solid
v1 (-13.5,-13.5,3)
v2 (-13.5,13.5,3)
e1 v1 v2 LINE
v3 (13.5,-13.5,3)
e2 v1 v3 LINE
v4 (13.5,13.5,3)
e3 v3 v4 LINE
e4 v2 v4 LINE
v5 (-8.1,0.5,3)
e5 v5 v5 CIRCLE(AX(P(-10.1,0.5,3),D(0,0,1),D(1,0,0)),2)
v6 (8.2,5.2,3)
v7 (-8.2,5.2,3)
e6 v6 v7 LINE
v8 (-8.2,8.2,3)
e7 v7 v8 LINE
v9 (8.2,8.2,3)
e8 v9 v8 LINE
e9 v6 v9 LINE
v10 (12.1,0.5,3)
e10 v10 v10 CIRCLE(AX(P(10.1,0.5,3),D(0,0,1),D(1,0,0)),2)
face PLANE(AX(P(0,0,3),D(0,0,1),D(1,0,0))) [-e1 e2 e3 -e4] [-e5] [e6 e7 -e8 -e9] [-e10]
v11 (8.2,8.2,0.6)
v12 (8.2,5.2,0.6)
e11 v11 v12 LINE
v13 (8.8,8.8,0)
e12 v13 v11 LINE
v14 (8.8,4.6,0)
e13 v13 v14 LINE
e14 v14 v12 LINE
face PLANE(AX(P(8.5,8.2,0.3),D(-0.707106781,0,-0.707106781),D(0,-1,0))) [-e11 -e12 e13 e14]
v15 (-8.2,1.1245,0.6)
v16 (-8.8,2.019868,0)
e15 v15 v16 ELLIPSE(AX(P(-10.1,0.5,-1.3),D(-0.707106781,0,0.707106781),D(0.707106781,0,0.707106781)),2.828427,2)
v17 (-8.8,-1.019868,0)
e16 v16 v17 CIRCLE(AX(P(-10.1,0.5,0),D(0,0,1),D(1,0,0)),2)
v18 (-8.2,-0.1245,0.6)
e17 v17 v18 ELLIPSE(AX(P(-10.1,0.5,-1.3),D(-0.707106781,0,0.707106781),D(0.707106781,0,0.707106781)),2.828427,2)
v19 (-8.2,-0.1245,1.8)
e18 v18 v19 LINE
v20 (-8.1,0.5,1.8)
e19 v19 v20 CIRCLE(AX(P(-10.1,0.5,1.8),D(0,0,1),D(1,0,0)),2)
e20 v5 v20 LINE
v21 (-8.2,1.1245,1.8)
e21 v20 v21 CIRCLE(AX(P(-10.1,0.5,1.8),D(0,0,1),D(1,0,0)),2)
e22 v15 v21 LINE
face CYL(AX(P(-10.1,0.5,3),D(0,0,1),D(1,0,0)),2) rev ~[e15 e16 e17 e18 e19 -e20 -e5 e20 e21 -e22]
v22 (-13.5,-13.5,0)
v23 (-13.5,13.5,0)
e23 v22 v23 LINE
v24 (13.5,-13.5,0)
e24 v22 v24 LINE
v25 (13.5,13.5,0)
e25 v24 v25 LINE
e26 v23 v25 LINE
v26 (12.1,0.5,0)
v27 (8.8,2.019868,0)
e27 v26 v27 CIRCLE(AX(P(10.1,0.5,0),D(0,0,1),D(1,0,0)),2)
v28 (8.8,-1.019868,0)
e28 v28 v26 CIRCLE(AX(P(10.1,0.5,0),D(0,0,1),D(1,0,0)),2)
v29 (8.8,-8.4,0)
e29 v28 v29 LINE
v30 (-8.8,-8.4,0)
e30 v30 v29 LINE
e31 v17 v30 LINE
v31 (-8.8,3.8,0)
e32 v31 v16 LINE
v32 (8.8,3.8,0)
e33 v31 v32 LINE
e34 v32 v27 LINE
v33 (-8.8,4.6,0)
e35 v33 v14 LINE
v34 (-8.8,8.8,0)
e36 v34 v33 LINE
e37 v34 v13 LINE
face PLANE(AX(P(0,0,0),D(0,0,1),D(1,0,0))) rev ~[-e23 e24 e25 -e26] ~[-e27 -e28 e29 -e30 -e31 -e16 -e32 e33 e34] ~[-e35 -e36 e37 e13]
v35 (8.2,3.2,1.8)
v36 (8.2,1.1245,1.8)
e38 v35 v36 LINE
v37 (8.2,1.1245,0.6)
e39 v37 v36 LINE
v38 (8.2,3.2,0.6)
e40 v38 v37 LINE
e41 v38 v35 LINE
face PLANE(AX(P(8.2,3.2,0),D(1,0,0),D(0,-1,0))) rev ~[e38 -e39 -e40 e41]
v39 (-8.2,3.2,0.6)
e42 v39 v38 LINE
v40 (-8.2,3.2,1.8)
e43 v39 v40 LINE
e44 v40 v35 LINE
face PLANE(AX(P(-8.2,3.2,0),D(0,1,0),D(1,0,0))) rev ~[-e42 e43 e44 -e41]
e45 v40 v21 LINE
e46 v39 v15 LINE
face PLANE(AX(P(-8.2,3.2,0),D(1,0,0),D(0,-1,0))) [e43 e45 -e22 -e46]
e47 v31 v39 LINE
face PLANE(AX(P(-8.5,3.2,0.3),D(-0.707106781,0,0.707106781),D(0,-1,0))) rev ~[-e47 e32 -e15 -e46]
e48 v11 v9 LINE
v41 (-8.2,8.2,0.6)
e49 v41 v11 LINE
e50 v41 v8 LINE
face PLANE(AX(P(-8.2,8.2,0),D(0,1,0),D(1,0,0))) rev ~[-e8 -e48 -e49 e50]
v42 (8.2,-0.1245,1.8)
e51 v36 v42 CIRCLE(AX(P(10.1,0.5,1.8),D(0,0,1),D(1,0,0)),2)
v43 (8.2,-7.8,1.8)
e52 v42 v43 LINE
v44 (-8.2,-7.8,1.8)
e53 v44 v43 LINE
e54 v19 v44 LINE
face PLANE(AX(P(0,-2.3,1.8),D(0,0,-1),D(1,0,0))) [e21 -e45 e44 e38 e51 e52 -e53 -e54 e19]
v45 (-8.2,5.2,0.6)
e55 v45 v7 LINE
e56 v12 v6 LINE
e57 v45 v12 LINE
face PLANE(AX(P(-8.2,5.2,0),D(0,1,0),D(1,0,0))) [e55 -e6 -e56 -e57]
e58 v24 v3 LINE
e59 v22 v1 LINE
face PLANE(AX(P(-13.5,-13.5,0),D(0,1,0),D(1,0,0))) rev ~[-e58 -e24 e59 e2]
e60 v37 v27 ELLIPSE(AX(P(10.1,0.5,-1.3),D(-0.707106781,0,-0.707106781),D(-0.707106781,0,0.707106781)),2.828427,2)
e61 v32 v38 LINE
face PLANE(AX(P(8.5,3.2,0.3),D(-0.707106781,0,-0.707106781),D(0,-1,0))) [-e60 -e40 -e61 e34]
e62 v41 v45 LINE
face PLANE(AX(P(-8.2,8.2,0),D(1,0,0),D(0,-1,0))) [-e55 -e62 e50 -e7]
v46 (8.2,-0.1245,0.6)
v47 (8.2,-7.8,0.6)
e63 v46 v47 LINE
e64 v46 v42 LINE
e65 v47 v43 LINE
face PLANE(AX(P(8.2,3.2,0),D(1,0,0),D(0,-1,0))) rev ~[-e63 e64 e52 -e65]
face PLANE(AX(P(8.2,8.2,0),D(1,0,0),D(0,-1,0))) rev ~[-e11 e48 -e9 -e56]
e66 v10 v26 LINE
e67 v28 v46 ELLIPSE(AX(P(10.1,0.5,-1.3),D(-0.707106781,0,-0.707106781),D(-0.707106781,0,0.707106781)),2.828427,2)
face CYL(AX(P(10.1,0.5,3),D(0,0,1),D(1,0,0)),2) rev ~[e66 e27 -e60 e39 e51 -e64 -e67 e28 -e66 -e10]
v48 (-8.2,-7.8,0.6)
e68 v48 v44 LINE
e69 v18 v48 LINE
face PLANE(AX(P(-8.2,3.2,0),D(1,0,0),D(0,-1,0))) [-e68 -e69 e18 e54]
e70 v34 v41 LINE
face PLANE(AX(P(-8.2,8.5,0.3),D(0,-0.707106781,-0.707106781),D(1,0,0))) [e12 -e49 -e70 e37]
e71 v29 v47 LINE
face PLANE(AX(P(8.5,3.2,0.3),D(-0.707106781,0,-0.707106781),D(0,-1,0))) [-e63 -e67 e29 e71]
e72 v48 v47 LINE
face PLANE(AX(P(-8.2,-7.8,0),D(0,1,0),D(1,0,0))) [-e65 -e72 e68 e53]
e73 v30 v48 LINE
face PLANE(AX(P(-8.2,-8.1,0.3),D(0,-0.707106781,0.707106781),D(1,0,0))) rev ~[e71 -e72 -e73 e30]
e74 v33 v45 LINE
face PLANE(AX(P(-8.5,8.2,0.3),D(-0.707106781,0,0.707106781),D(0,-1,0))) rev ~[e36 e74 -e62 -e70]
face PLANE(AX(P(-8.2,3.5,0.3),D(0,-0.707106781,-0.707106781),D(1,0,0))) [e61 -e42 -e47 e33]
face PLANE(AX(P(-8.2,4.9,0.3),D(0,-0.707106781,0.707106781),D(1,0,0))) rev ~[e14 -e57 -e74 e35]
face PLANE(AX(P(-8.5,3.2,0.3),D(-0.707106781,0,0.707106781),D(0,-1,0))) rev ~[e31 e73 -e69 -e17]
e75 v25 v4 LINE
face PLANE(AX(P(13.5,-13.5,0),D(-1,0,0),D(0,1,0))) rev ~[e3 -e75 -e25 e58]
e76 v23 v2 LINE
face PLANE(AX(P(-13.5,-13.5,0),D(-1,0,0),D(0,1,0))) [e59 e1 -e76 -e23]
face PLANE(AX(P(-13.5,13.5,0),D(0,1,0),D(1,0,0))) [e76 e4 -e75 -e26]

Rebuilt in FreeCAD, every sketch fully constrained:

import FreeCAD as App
import Part
import Sketcher
from FreeCAD import Vector


def edges_at(feature, points):
    """Names of the edges that pass closest to the given points."""
    edges = feature.Shape.Edges
    near = lambda p: min(range(len(edges)), key=lambda i: edges[i].distToShape(Part.Vertex(*p))[0])
    return sorted({f"Edge{near(p) + 1}" for p in points})

doc = App.newDocument("Part")
body = doc.addObject("PartDesign::Body", "Body")

# Sketch on XY plane
sketch1 = body.newObject("Sketcher::SketchObject", "Sketch")
sketch1.AttachmentSupport = (doc.getObject("XY_Plane"), [""])
sketch1.MapMode = "FlatFace"
sketch1.addGeometry(Part.LineSegment(Vector(-13.5, 13.5, 0), Vector(-13.5, -13.5, 0)), False)
sketch1.addGeometry(Part.LineSegment(Vector(-13.5, -13.5, 0), Vector(13.5, -13.5, 0)), False)
sketch1.addGeometry(Part.LineSegment(Vector(13.5, -13.5, 0), Vector(13.5, 13.5, 0)), False)
sketch1.addGeometry(Part.LineSegment(Vector(13.5, 13.5, 0), Vector(-13.5, 13.5, 0)), False)
sketch1.addConstraint(Sketcher.Constraint("Coincident", 0, 2, 1, 1))
sketch1.addConstraint(Sketcher.Constraint("Coincident", 1, 2, 2, 1))
sketch1.addConstraint(Sketcher.Constraint("Coincident", 2, 2, 3, 1))
sketch1.addConstraint(Sketcher.Constraint("Coincident", 3, 2, 0, 1))
sketch1.addConstraint(Sketcher.Constraint("Vertical", 0))
sketch1.addConstraint(Sketcher.Constraint("Horizontal", 1))
sketch1.addConstraint(Sketcher.Constraint("Vertical", 2))
sketch1.addConstraint(Sketcher.Constraint("Horizontal", 3))
sketch1.addConstraint(Sketcher.Constraint("Symmetric", 0, 2, 2, 2, -1, 1))
sketch1.addConstraint(Sketcher.Constraint("Equal", 3, 0))
sketch1.addConstraint(Sketcher.Constraint("DistanceX", 1, 1, 1, 2, 27.0))
pad1 = body.newObject("PartDesign::Pad", "Pad")
pad1.Profile = sketch1
pad1.Length = 3

# Sketch on XY plane
sketch2 = body.newObject("Sketcher::SketchObject", "Sketch001")
sketch2.AttachmentSupport = (doc.getObject("XY_Plane"), [""])
sketch2.MapMode = "FlatFace"
sketch2.addGeometry(Part.LineSegment(Vector(-8.2, 5.2, 0), Vector(-8.2, 8.2, 0)), False)
sketch2.addGeometry(Part.LineSegment(Vector(-8.2, 8.2, 0), Vector(8.2, 8.2, 0)), False)
sketch2.addGeometry(Part.LineSegment(Vector(8.2, 8.2, 0), Vector(8.2, 5.2, 0)), False)
sketch2.addGeometry(Part.LineSegment(Vector(8.2, 5.2, 0), Vector(-8.2, 5.2, 0)), False)
sketch2.addConstraint(Sketcher.Constraint("Coincident", 0, 2, 1, 1))
sketch2.addConstraint(Sketcher.Constraint("Coincident", 1, 2, 2, 1))
sketch2.addConstraint(Sketcher.Constraint("Coincident", 2, 2, 3, 1))
sketch2.addConstraint(Sketcher.Constraint("Coincident", 3, 2, 0, 1))
sketch2.addConstraint(Sketcher.Constraint("Vertical", 0))
sketch2.addConstraint(Sketcher.Constraint("Horizontal", 1))
sketch2.addConstraint(Sketcher.Constraint("Vertical", 2))
sketch2.addConstraint(Sketcher.Constraint("Horizontal", 3))
sketch2.addConstraint(Sketcher.Constraint("DistanceY", 0, 1, 0, 2, 3.0))
sketch2.addConstraint(Sketcher.Constraint("DistanceX", 1, 1, 1, 2, 16.4))
sketch2.addConstraint(Sketcher.Constraint("DistanceX", 0, 2, -1, 1, 8.2))
sketch2.addConstraint(Sketcher.Constraint("DistanceY", -1, 1, 0, 2, 8.2))
pocket1 = body.newObject("PartDesign::Pocket", "Pocket")
pocket1.Profile = sketch2
pocket1.Length = 5
pocket1.Reversed = True

# Sketch on XY plane
sketch3 = body.newObject("Sketcher::SketchObject", "Sketch002")
sketch3.AttachmentSupport = (doc.getObject("XY_Plane"), [""])
sketch3.MapMode = "FlatFace"
sketch3.addGeometry(Part.LineSegment(Vector(-8.2, -7.8, 0), Vector(-8.2, 3.2, 0)), False)
sketch3.addGeometry(Part.LineSegment(Vector(-8.2, 3.2, 0), Vector(8.2, 3.2, 0)), False)
sketch3.addGeometry(Part.LineSegment(Vector(8.2, 3.2, 0), Vector(8.2, -7.8, 0)), False)
sketch3.addGeometry(Part.LineSegment(Vector(8.2, -7.8, 0), Vector(-8.2, -7.8, 0)), False)
sketch3.addConstraint(Sketcher.Constraint("Coincident", 0, 2, 1, 1))
sketch3.addConstraint(Sketcher.Constraint("Coincident", 1, 2, 2, 1))
sketch3.addConstraint(Sketcher.Constraint("Coincident", 2, 2, 3, 1))
sketch3.addConstraint(Sketcher.Constraint("Coincident", 3, 2, 0, 1))
sketch3.addConstraint(Sketcher.Constraint("Vertical", 0))
sketch3.addConstraint(Sketcher.Constraint("Horizontal", 1))
sketch3.addConstraint(Sketcher.Constraint("Vertical", 2))
sketch3.addConstraint(Sketcher.Constraint("Horizontal", 3))
sketch3.addConstraint(Sketcher.Constraint("DistanceY", 0, 1, 0, 2, 11.0))
sketch3.addConstraint(Sketcher.Constraint("DistanceX", 1, 1, 1, 2, 16.4))
sketch3.addConstraint(Sketcher.Constraint("DistanceX", 0, 2, -1, 1, 8.2))
sketch3.addConstraint(Sketcher.Constraint("DistanceY", -1, 1, 0, 2, 3.2))
pocket2 = body.newObject("PartDesign::Pocket", "Pocket001")
pocket2.Profile = sketch3
pocket2.Length = 1.8
pocket2.Reversed = True
doc.recompute()

chamfer = body.newObject("PartDesign::Chamfer", "Chamfer")
chamfer.Base = (pocket2, edges_at(pocket2, [
    (8.2, -2.3, 0),
    (0, -7.8, 0),
    (-8.2, -2.3, 0),
    (0, 3.2, 0),
    (0, 5.2, 0),
    (8.2, 6.7, 0),
    (0, 8.2, 0),
    (-8.2, 6.7, 0),
]))
chamfer.Size = 0.6

# Sketch on XY plane
sketch4 = body.newObject("Sketcher::SketchObject", "Sketch003")
sketch4.AttachmentSupport = (doc.getObject("XY_Plane"), [""])
sketch4.MapMode = "FlatFace"
sketch4.AttachmentOffset = App.Placement(Vector(0, 0, 3), App.Rotation())
sketch4.addGeometry(Part.Circle(Vector(-10.1, 0.5, 0), Vector(0, 0, 1), 2), False)
sketch4.addGeometry(Part.Circle(Vector(10.1, 0.5, 0), Vector(0, 0, 1), 2), False)
sketch4.addConstraint(Sketcher.Constraint("Equal", 0, 1))
sketch4.addConstraint(Sketcher.Constraint("Symmetric", 0, 3, 1, 3, -2))
sketch4.addConstraint(Sketcher.Constraint("Diameter", 0, 4.0))
sketch4.addConstraint(Sketcher.Constraint("DistanceX", 0, 3, -1, 1, 10.1))
sketch4.addConstraint(Sketcher.Constraint("DistanceY", -1, 1, 0, 3, 0.5))
pocket3 = body.newObject("PartDesign::Pocket", "Pocket002")
pocket3.Profile = sketch4
pocket3.Type = "ThroughAll"

doc.recompute()
